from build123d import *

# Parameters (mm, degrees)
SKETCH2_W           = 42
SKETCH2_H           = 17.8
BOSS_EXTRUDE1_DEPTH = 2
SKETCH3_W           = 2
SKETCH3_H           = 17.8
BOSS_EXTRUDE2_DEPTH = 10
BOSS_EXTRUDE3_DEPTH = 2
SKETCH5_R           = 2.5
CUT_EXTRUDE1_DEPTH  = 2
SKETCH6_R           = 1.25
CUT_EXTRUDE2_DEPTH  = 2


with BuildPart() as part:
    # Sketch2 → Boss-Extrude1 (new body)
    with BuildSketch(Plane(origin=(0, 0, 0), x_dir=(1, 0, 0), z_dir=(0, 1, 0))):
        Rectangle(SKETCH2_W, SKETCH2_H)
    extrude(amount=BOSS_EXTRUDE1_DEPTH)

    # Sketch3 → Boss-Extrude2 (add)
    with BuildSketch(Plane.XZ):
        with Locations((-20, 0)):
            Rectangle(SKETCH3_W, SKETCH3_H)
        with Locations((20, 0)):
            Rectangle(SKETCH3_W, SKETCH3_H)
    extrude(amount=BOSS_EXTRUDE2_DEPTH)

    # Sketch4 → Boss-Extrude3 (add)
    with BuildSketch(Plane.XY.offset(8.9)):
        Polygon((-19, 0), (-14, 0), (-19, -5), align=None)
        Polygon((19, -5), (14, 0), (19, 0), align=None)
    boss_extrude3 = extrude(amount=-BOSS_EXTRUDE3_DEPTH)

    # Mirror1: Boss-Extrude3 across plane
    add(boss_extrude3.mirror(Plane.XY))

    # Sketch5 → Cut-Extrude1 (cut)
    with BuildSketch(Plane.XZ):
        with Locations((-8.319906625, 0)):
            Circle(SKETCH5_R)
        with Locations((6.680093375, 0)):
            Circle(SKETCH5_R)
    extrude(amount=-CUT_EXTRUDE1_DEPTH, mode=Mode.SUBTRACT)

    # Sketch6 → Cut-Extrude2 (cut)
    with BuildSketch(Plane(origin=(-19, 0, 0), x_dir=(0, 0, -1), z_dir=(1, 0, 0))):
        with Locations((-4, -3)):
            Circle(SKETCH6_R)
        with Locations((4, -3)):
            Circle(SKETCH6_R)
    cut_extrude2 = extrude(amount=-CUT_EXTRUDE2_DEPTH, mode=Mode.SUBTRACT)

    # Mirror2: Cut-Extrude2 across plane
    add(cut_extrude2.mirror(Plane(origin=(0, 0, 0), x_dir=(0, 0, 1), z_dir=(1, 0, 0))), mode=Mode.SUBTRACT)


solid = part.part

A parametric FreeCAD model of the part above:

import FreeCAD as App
import Part
import Sketcher
from FreeCAD import Vector
Q = App.Units.Quantity


def add_polygon(sketch, points):
    """Adds a closed chain of lines whose ends are joined by coincident constraints."""
    first, n = sketch.GeometryCount, len(points)
    for a, b in zip(points, points[1:] + points[:1]):
        sketch.addGeometry(Part.LineSegment(App.Vector(*a, 0), App.Vector(*b, 0)), False)
    for i in range(n):
        sketch.addConstraint(Sketcher.Constraint("Coincident", first + i, 2, first + (i + 1) % n, 1))

doc = App.newDocument("Part")
body = doc.addObject("PartDesign::Body", "Body")

# Sketch on XZ plane
sketch1 = body.newObject("Sketcher::SketchObject", "Sketch")
sketch1.AttachmentSupport = (doc.getObject("XZ_Plane"), [""])
sketch1.MapMode = "FlatFace"
add_polygon(sketch1, [(-21, -8.9), (-21, 8.9), (21, 8.9), (21, -8.9)])  # lines 0-3
sketch1.addConstraint([
    Sketcher.Constraint("Vertical", 0),
    Sketcher.Constraint("Horizontal", 1),
    Sketcher.Constraint("Vertical", 2),
    Sketcher.Constraint("Horizontal", 3),
    Sketcher.Constraint("Symmetric", 0, 2, 2, 2, -1, 1),
    Sketcher.Constraint("DistanceX", 1, 1, 1, 2, Q("42 mm")),
    Sketcher.Constraint("DistanceY", 0, 1, 0, 2, Q("17.8 mm")),
])
pad1 = body.newObject("PartDesign::Pad", "Pad")
pad1.Profile = sketch1
pad1.Length = 2
pad1.Reversed = True

# Sketch on XZ plane
sketch2 = body.newObject("Sketcher::SketchObject", "Sketch001")
sketch2.AttachmentSupport = (doc.getObject("XZ_Plane"), [""])
sketch2.MapMode = "FlatFace"
add_polygon(sketch2, [(-21, 8.9), (-21, -8.9), (-19, -8.9), (-19, 8.9)])  # lines 0-3
add_polygon(sketch2, [(19, 8.9), (19, -8.9), (21, -8.9), (21, 8.9)])  # lines 4-7
sketch2.addConstraint([
    Sketcher.Constraint("Vertical", 0),
    Sketcher.Constraint("Horizontal", 1),
    Sketcher.Constraint("Vertical", 2),
    Sketcher.Constraint("Horizontal", 3),
    Sketcher.Constraint("Vertical", 4),
    Sketcher.Constraint("Horizontal", 5),
    Sketcher.Constraint("Vertical", 6),
    Sketcher.Constraint("Horizontal", 7),
    Sketcher.Constraint("Symmetric", 2, 2, 4, 2, -1, 1),
    Sketcher.Constraint("Symmetric", 0, 2, 6, 2, -1, 1),
    Sketcher.Constraint("Horizontal", 1, 2, 4, 2),
    Sketcher.Constraint("DistanceX", 1, 1, 1, 2, Q("2 mm")),
    Sketcher.Constraint("DistanceY", 0, 2, 0, 1, Q("17.8 mm")),
    Sketcher.Constraint("DistanceX", 0, 2, -1, 1, Q("21 mm")),
])
pad2 = body.newObject("PartDesign::Pad", "Pad001")
pad2.Profile = sketch2
pad2.Length = 10

# Sketch on XY plane
sketch3 = body.newObject("Sketcher::SketchObject", "Sketch002")
sketch3.AttachmentSupport = (doc.getObject("XY_Plane"), [""])
sketch3.MapMode = "FlatFace"
sketch3.AttachmentOffset = App.Placement(Vector(0, 0, 8.9), App.Rotation())
add_polygon(sketch3, [(-14, 0), (-19, 0), (-19, -5)])  # lines 0-2
add_polygon(sketch3, [(14, 0), (19, -5), (19, 0)])  # lines 3-5
sketch3.addConstraint([
    Sketcher.Constraint("Horizontal", 0),
    Sketcher.Constraint("Vertical", 1),
    Sketcher.Constraint("Vertical", 4),
    Sketcher.Constraint("Horizontal", 5),
    Sketcher.Constraint("Symmetric", 0, 2, 4, 2, -1, 1),
    Sketcher.Constraint("Symmetric", 2, 2, 5, 2, -2),
    Sketcher.Constraint("Perpendicular", 2, 3),
    Sketcher.Constraint("Horizontal", 1, 2, 3, 2),
    Sketcher.Constraint("DistanceX", 0, 2, 0, 1, Q("5 mm")),
    Sketcher.Constraint("DistanceX", 0, 2, -1, 1, Q("19 mm")),
])
pad3 = body.newObject("PartDesign::Pad", "Pad002")
pad3.Profile = sketch3
pad3.Length = 2
pad3.Reversed = True
doc.recompute()

mirrored = body.newObject("PartDesign::Mirrored", "Mirrored")
mirrored.Originals = [pad3]
mirrored.MirrorPlane = (doc.getObject("XY_Plane"), [""])
body.Tip = mirrored

# Sketch on XZ plane
sketch4 = body.newObject("Sketcher::SketchObject", "Sketch003")
sketch4.AttachmentSupport = (doc.getObject("XZ_Plane"), [""])
sketch4.MapMode = "FlatFace"
sketch4.addGeometry([
    Part.Circle(Vector(-8.319907, 0, 0), Vector(0, 0, 1), 2.5),
    Part.Circle(Vector(6.680093, 0, 0), Vector(0, 0, 1), 2.5),
], False)
sketch4.addConstraint([
    Sketcher.Constraint("Equal", 0, 1),
    Sketcher.Constraint("PointOnObject", 0, 3, -1),
    Sketcher.Constraint("PointOnObject", 1, 3, -1),
    Sketcher.Constraint("Diameter", 0, Q("5 mm")),
    Sketcher.Constraint("DistanceX", 0, 3, 1, 3, Q("15 mm")),
    Sketcher.Constraint("DistanceX", 0, 3, -1, 1, Q("8.319907 mm")),
])
pocket1 = body.newObject("PartDesign::Pocket", "Pocket")
pocket1.Profile = sketch4
pocket1.Length = 2

# Sketch on YZ plane
sketch5 = body.newObject("Sketcher::SketchObject", "Sketch004")
sketch5.AttachmentSupport = (doc.getObject("YZ_Plane"), [""])
sketch5.MapMode = "FlatFace"
sketch5.AttachmentOffset = App.Placement(Vector(0, 0, -19), App.Rotation())
sketch5.addGeometry([
    Part.Circle(Vector(-3, 4, 0), Vector(0, 0, 1), 1.25),
    Part.Circle(Vector(-3, -4, 0), Vector(0, 0, 1), 1.25),
], False)
sketch5.addConstraint([
    Sketcher.Constraint("Equal", 0, 1),
    Sketcher.Constraint("Symmetric", 0, 3, 1, 3, -1),
    Sketcher.Constraint("Diameter", 0, Q("2.5 mm")),
    Sketcher.Constraint("DistanceX", 0, 3, -1, 1, Q("3 mm")),
    Sketcher.Constraint("DistanceY", -1, 1, 0, 3, Q("4 mm")),
])
pocket2 = body.newObject("PartDesign::Pocket", "Pocket001")
pocket2.Profile = sketch5
pocket2.Length = 2
doc.recompute()

mirrored2 = body.newObject("PartDesign::Mirrored", "Mirrored001")
mirrored2.Originals = [pocket2]
mirrored2.MirrorPlane = (doc.getObject("YZ_Plane"), [""])
body.Tip = mirrored2

doc.recompute()
